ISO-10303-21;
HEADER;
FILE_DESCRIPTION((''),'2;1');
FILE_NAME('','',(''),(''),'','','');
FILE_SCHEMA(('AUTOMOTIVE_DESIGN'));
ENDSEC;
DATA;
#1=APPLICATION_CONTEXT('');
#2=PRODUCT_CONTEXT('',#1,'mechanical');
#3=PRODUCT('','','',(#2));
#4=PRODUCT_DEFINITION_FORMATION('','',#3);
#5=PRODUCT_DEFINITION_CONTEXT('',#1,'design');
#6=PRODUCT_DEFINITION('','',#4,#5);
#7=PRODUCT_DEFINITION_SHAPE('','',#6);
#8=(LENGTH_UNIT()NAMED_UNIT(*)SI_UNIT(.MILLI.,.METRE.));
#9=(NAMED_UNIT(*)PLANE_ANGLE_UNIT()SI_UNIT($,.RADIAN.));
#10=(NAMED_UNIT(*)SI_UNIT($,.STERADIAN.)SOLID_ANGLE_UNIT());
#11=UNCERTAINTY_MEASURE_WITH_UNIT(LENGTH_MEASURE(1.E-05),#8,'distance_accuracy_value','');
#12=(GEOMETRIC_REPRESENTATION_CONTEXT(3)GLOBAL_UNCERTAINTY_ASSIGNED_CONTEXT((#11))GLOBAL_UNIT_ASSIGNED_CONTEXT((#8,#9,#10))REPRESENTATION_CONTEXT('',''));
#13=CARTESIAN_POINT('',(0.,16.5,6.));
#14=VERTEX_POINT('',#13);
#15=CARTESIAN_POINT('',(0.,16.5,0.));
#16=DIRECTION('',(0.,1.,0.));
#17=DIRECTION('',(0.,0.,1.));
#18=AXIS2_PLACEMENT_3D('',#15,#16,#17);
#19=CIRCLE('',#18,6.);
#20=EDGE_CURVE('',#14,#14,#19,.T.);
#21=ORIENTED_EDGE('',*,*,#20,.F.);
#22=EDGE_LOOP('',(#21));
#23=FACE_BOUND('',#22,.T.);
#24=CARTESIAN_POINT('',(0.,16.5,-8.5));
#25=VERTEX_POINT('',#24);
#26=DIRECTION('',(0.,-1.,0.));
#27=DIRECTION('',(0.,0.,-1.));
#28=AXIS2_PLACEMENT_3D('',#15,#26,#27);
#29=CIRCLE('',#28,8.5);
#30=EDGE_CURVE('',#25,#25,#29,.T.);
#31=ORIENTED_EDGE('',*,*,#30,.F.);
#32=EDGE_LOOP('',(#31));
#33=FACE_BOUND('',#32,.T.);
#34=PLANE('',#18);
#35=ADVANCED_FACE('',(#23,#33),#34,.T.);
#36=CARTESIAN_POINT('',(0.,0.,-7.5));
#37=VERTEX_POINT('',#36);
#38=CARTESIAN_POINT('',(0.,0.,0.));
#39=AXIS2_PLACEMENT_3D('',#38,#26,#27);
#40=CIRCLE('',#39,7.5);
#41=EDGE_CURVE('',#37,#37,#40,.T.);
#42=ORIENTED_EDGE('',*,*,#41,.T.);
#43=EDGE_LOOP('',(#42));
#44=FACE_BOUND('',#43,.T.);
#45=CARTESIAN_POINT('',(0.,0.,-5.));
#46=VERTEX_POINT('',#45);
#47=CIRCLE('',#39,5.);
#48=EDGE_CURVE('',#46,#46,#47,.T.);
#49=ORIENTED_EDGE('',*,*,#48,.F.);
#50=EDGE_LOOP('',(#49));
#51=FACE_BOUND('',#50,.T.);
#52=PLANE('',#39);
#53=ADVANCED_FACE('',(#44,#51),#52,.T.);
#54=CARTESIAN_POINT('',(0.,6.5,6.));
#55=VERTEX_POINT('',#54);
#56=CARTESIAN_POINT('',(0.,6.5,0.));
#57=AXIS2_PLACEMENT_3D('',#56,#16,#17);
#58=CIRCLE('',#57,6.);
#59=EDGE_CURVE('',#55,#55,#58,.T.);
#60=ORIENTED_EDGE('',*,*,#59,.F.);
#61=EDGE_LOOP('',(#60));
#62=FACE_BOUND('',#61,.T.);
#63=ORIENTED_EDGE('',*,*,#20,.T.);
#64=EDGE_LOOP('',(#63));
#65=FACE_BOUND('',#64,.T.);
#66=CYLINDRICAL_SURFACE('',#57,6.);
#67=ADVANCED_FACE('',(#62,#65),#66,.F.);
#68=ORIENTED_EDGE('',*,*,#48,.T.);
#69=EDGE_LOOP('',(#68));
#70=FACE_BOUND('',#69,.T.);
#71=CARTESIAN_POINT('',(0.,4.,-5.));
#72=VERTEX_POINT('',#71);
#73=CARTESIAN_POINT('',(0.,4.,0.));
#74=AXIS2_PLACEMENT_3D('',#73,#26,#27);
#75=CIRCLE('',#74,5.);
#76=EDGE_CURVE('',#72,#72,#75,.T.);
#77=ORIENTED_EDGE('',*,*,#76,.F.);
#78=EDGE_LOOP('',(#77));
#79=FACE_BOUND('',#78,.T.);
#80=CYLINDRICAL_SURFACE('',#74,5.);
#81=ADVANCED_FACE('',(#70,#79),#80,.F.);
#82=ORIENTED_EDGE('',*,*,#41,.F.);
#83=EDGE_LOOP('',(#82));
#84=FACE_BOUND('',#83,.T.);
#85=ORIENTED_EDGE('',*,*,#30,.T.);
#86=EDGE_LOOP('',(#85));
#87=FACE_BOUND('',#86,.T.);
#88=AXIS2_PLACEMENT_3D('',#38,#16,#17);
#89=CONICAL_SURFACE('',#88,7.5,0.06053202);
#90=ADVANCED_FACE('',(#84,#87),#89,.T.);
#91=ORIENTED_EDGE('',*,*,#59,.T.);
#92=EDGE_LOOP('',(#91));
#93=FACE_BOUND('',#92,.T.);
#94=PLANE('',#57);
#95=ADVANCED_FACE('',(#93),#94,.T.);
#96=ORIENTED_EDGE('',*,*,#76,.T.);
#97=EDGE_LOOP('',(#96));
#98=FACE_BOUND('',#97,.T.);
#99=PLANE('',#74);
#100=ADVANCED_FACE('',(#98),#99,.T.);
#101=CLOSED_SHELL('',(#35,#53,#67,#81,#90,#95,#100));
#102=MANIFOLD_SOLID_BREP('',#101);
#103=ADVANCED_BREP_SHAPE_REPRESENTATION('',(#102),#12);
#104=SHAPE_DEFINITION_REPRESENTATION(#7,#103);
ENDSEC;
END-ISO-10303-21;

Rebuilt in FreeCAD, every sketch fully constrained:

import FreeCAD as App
import Part
import Sketcher


def add_polygon(sketch, points):
    """Adds a closed chain of lines whose ends are joined by coincident constraints."""
    first, n = sketch.GeometryCount, len(points)
    for a, b in zip(points, points[1:] + points[:1]):
        sketch.addGeometry(Part.LineSegment(App.Vector(*a, 0), App.Vector(*b, 0)), False)
    for i in range(n):
        sketch.addConstraint(Sketcher.Constraint("Coincident", first + i, 2, first + (i + 1) % n, 1))

doc = App.newDocument("Part")
body = doc.addObject("PartDesign::Body", "Body")

# Sketch on XY plane
sketch1 = body.newObject("Sketcher::SketchObject", "Sketch")
sketch1.AttachmentSupport = (doc.getObject("XY_Plane"), [""])
sketch1.MapMode = "FlatFace"
add_polygon(sketch1, [(0, 16), (0, 0), (8, 0), (8, 16)])  # lines 0-3
sketch1.addConstraint([
    Sketcher.Constraint("Vertical", 0),
    Sketcher.Constraint("Horizontal", 1),
    Sketcher.Constraint("Horizontal", 3),
    Sketcher.Constraint("Coincident", 0, 2, -1, 1),
    Sketcher.Constraint("DistanceX", 1, 1, 1, 2, 7.5),
    Sketcher.Constraint("DistanceX", 3, 2, 3, 1, 8.5),
    Sketcher.Constraint("DistanceY", 0, 2, 0, 1, 16.5),
])
revolution = body.newObject("PartDesign::Revolution", "Revolution")
revolution.Profile = sketch1
revolution.ReferenceAxis = (sketch1, ["V_Axis"])
revolution.Angle = 360

# Sketch on XZ plane
sketch2 = body.newObject("Sketcher::SketchObject", "Sketch001")
sketch2.AttachmentSupport = (doc.getObject("XZ_Plane"), [""])
sketch2.MapMode = "FlatFace"
sketch2.AttachmentOffset = App.Placement(App.Vector(0, 0, -16.5), App.Rotation())
sketch2.addGeometry(Part.Circle(App.Vector(0, 0, 0), App.Vector(0, 0, 1), 6), False)
sketch2.addConstraint([
    Sketcher.Constraint("Coincident", 0, 3, -1, 1),
    Sketcher.Constraint("Diameter", 0, 12.0),
])
pocket1 = body.newObject("PartDesign::Pocket", "Pocket")
pocket1.Profile = sketch2
pocket1.Length = 10
pocket1.Reversed = True

# Sketch on XZ plane
sketch3 = body.newObject("Sketcher::SketchObject", "Sketch002")
sketch3.AttachmentSupport = (doc.getObject("XZ_Plane"), [""])
sketch3.MapMode = "FlatFace"
sketch3.addGeometry(Part.Circle(App.Vector(0, 0, 0), App.Vector(0, 0, 1), 5), False)
sketch3.addConstraint([
    Sketcher.Constraint("Coincident", 0, 3, -1, 1),
    Sketcher.Constraint("Diameter", 0, 10.0),
])
pocket2 = body.newObject("PartDesign::Pocket", "Pocket001")
pocket2.Profile = sketch3
pocket2.Length = 4

doc.recompute()
